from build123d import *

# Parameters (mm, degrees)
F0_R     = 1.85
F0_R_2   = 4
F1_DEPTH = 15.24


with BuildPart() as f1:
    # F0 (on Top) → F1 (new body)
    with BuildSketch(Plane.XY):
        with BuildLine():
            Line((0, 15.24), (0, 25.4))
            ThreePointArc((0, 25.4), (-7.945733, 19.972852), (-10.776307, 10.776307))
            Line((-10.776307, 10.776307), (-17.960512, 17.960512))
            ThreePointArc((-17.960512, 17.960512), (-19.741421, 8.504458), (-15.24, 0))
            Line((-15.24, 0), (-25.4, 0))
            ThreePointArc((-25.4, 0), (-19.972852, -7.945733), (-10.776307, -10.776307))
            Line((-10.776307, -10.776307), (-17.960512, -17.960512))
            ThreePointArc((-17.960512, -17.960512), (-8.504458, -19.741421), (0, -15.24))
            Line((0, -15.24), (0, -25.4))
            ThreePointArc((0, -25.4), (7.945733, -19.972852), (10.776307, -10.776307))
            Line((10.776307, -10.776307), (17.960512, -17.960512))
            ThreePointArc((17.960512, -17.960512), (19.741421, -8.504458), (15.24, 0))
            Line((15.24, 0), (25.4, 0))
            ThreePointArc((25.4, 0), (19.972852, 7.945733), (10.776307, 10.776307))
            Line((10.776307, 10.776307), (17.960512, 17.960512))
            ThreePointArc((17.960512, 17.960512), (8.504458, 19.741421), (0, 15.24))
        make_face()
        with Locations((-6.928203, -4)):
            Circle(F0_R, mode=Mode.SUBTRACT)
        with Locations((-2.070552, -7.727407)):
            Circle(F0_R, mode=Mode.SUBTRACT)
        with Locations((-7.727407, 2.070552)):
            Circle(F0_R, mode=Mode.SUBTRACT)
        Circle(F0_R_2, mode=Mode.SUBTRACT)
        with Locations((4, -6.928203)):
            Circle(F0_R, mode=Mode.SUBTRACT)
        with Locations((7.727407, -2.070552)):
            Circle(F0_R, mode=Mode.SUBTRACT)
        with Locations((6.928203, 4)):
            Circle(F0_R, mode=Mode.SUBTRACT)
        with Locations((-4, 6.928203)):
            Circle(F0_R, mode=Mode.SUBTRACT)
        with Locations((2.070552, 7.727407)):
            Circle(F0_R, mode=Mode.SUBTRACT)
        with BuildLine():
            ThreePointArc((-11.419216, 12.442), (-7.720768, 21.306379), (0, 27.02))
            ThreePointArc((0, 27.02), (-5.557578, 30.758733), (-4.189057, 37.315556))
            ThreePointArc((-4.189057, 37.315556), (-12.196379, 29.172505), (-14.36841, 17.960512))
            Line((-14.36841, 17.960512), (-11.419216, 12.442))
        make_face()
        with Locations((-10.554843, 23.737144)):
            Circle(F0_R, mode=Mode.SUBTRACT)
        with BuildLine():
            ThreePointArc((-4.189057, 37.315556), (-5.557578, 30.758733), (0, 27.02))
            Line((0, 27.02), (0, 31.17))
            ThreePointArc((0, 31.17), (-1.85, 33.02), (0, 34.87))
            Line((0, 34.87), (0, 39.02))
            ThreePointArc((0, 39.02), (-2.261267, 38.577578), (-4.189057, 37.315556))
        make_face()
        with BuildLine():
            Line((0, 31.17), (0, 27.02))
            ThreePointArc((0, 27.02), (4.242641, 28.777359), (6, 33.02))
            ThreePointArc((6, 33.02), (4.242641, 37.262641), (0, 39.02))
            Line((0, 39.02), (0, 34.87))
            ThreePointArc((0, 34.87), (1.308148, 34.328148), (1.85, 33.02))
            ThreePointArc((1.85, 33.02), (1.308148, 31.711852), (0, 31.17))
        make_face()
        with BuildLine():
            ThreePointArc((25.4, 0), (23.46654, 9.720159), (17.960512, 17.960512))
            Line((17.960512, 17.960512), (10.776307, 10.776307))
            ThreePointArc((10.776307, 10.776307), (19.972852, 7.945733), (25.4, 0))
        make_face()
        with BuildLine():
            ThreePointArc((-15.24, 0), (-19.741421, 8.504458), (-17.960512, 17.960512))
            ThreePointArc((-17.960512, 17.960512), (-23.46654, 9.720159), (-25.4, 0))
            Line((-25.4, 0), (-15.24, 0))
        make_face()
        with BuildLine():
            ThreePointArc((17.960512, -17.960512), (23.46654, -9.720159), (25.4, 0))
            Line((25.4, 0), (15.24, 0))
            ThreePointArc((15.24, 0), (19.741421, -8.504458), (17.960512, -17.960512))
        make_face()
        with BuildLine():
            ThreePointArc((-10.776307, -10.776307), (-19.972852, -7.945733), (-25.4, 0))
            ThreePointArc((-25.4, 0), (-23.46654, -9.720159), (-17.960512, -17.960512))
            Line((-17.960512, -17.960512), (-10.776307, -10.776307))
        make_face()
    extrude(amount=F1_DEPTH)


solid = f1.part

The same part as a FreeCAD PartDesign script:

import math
import FreeCAD as App
import Part
import Sketcher

V = App.Vector
Q = App.Units.Quantity

doc = App.newDocument("Part")
body = doc.addObject("PartDesign::Body", "Body")
body.AllowCompound = True

# Sketch on XY plane
sketch1 = body.newObject("Sketcher::SketchObject", "Sketch")
sketch1.AttachmentSupport = (doc.getObject("XY_Plane"), [""])
sketch1.MapMode = "FlatFace"
sketch1.addGeometry(Part.LineSegment(V(0, 15.2, 0), V(0, 25.4, 0)), False)
sketch1.addGeometry(Part.ArcOfCircle(Part.Circle(V(3.8, 11.3, 0), V(0, 0, 1), 14.6), math.radians(105), math.radians(182)), False)
sketch1.addGeometry(Part.LineSegment(V(-10.8, 10.8, 0), V(-18, 18, 0)), False)
sketch1.addGeometry(Part.ArcOfCircle(Part.Circle(V(0, 0, 0), V(0, 0, 1), 25.4), math.radians(135), math.radians(180)), False)
sketch1.addGeometry(Part.ArcOfCircle(Part.Circle(V(0, 0, 0), V(0, 0, 1), 25.4), math.radians(-180), math.radians(-135)), False)
sketch1.addGeometry(Part.ArcOfCircle(Part.Circle(V(-10.7, -5.3, 0), V(0, 0, 1), 14.6), math.radians(-120), math.radians(-43)), False)
sketch1.addGeometry(Part.LineSegment(V(0, -15.2, 0), V(0, -25.4, 0)), False)
sketch1.addGeometry(Part.ArcOfCircle(Part.Circle(V(-3.8, -11.3, 0), V(0, 0, 1), 14.6), math.radians(-75), math.radians(2)), False)
sketch1.addGeometry(Part.LineSegment(V(10.8, -10.8, 0), V(18, -18, 0)), False)
sketch1.addGeometry(Part.ArcOfCircle(Part.Circle(V(0, 0, 0), V(0, 0, 1), 25.4), math.radians(-45), math.radians(0)), False)
sketch1.addGeometry(Part.ArcOfCircle(Part.Circle(V(0, 0, 0), V(0, 0, 1), 25.4), math.radians(0), math.radians(45)), False)
sketch1.addGeometry(Part.ArcOfCircle(Part.Circle(V(10.7, 5.3, 0), V(0, 0, 1), 14.6), math.radians(60), math.radians(137)), False)
sketch1.addGeometry(Part.Circle(V(-2.1, -7.7, 0), V(0, 0, 1), 1.9), False)
sketch1.addGeometry(Part.Circle(V(-6.9, -4, 0), V(0, 0, 1), 1.9), False)
sketch1.addGeometry(Part.Circle(V(4, -6.9, 0), V(0, 0, 1), 1.9), False)
sketch1.addGeometry(Part.Circle(V(7.7, -2.1, 0), V(0, 0, 1), 1.9), False)
sketch1.addGeometry(Part.Circle(V(-7.7, 2.1, 0), V(0, 0, 1), 1.9), False)
sketch1.addGeometry(Part.Circle(V(-4, 6.9, 0), V(0, 0, 1), 1.9), False)
sketch1.addGeometry(Part.Circle(V(0, 0, 0), V(0, 0, 1), 4), False)
sketch1.addGeometry(Part.Circle(V(6.9, 4, 0), V(0, 0, 1), 1.9), False)
sketch1.addGeometry(Part.Circle(V(2.1, 7.7, 0), V(0, 0, 1), 1.9), False)
sketch1.addGeometry(Part.ArcOfCircle(Part.Circle(V(6.5, 10.2, 0), V(0, 0, 1), 18.1), math.radians(111), math.radians(173)), False)
sketch1.addGeometry(Part.ArcOfCircle(Part.Circle(V(0, 33, 0), V(0, 0, 1), 6), math.radians(-90), math.radians(0)), False)
sketch1.addGeometry(Part.ArcOfCircle(Part.Circle(V(0, 33, 0), V(0, 0, 1), 6), math.radians(0), math.radians(90)), False)
sketch1.addGeometry(Part.ArcOfCircle(Part.Circle(V(0, 33, 0), V(0, 0, 1), 6), math.radians(90), math.radians(134)), False)
sketch1.addGeometry(Part.ArcOfCircle(Part.Circle(V(5.3, 20, 0), V(0, 0, 1), 19.8), math.radians(119), math.radians(186)), False)
sketch1.addGeometry(Part.LineSegment(V(-14.4, 18, 0), V(-11.4, 12.4, 0)), False)
sketch1.addGeometry(Part.ArcOfCircle(Part.Circle(V(0, 33, 0), V(0, 0, 1), 1.9), math.radians(90), math.radians(270)), False)
sketch1.addGeometry(Part.ArcOfCircle(Part.Circle(V(0, 33, 0), V(0, 0, 1), 1.8), math.radians(0), math.radians(90)), False)
sketch1.addGeometry(Part.ArcOfCircle(Part.Circle(V(0, 33, 0), V(0, 0, 1), 1.8), math.radians(-90), math.radians(0)), False)
sketch1.addGeometry(Part.Circle(V(-10.6, 23.7, 0), V(0, 0, 1), 1.9), False)
sketch1.addConstraint(Sketcher.Constraint("Coincident", 0, 2, 1, 1))
sketch1.addConstraint(Sketcher.Constraint("Coincident", 1, 2, 2, 1))
sketch1.addConstraint(Sketcher.Constraint("Coincident", 2, 2, 3, 1))
sketch1.addConstraint(Sketcher.Constraint("Tangent", 3, 2, 4, 1))
sketch1.addConstraint(Sketcher.Constraint("Coincident", 4, 2, 5, 1))
sketch1.addConstraint(Sketcher.Constraint("Coincident", 5, 2, 6, 1))
sketch1.addConstraint(Sketcher.Constraint("Coincident", 6, 2, 7, 1))
sketch1.addConstraint(Sketcher.Constraint("Coincident", 7, 2, 8, 1))
sketch1.addConstraint(Sketcher.Constraint("Coincident", 8, 2, 9, 1))
sketch1.addConstraint(Sketcher.Constraint("Tangent", 9, 2, 10, 1))
sketch1.addConstraint(Sketcher.Constraint("Coincident", 10, 2, 11, 1))
sketch1.addConstraint(Sketcher.Constraint("Coincident", 11, 2, 0, 1))
sketch1.addConstraint(Sketcher.Constraint("Coincident", 21, 1, 22, 1))
sketch1.addConstraint(Sketcher.Constraint("Tangent", 22, 2, 23, 1))
sketch1.addConstraint(Sketcher.Constraint("Tangent", 23, 2, 24, 1))
sketch1.addConstraint(Sketcher.Constraint("Coincident", 24, 2, 25, 1))
sketch1.addConstraint(Sketcher.Constraint("Coincident", 25, 2, 26, 1))
sketch1.addConstraint(Sketcher.Constraint("Coincident", 26, 2, 21, 2))
sketch1.addConstraint(Sketcher.Constraint("Tangent", 27, 1, 28, 2))
sketch1.addConstraint(Sketcher.Constraint("Tangent", 28, 1, 29, 2))
sketch1.addConstraint(Sketcher.Constraint("Tangent", 29, 1, 27, 2))
sketch1.addConstraint(Sketcher.Constraint("Vertical", 0))
sketch1.addConstraint(Sketcher.Constraint("Vertical", 6))
sketch1.addConstraint(Sketcher.Constraint("Coincident", 3, 3, -1, 1))
sketch1.addConstraint(Sketcher.Constraint("Coincident", 9, 3, -1, 1))
sketch1.addConstraint(Sketcher.Constraint("Coincident", 18, 3, -1, 1))
sketch1.addConstraint(Sketcher.Constraint("Coincident", 24, 3, 22, 3))
sketch1.addConstraint(Sketcher.Constraint("Coincident", 27, 3, 22, 3))
sketch1.addConstraint(Sketcher.Constraint("Equal", 3, 4))
sketch1.addConstraint(Sketcher.Constraint("Equal", 1, 5))
sketch1.addConstraint(Sketcher.Constraint("Equal", 5, 7))
sketch1.addConstraint(Sketcher.Constraint("Equal", 4, 9))
sketch1.addConstraint(Sketcher.Constraint("Equal", 9, 10))
sketch1.addConstraint(Sketcher.Constraint("Equal", 7, 11))
sketch1.addConstraint(Sketcher.Constraint("Equal", 12, 13))
sketch1.addConstraint(Sketcher.Constraint("Equal", 13, 14))
sketch1.addConstraint(Sketcher.Constraint("Equal", 14, 15))
sketch1.addConstraint(Sketcher.Constraint("Equal", 15, 16))
sketch1.addConstraint(Sketcher.Constraint("Equal", 16, 17))
sketch1.addConstraint(Sketcher.Constraint("Equal", 17, 19))
sketch1.addConstraint(Sketcher.Constraint("Equal", 19, 20))
sketch1.addConstraint(Sketcher.Constraint("Equal", 20, 27))
sketch1.addConstraint(Sketcher.Constraint("Equal", 29, 30))
sketch1.addConstraint(Sketcher.Constraint("Symmetric", 1, 3, 7, 3, -1, 1))
sketch1.addConstraint(Sketcher.Constraint("Symmetric", 5, 3, 11, 3, -1, 1))
sketch1.addConstraint(Sketcher.Constraint("Symmetric", 15, 3, 16, 3, -1, 1))
sketch1.addConstraint(Sketcher.Constraint("Symmetric", 14, 3, 17, 3, -1, 1))
sketch1.addConstraint(Sketcher.Constraint("Symmetric", 13, 3, 19, 3, -1, 1))
sketch1.addConstraint(Sketcher.Constraint("Symmetric", 12, 3, 20, 3, -1, 1))
sketch1.addConstraint(Sketcher.Constraint("Symmetric", 0, 2, 6, 2, -1))
sketch1.addConstraint(Sketcher.Constraint("PointOnObject", 22, 3, -2))
sketch1.addConstraint(Sketcher.Constraint("PointOnObject", 3, 2, -1))
sketch1.addConstraint(Sketcher.Constraint("PointOnObject", 9, 2, -1))
sketch1.addConstraint(Sketcher.Constraint("PointOnObject", 21, 1, -2))
sketch1.addConstraint(Sketcher.Constraint("PointOnObject", 23, 2, -2))
sketch1.addConstraint(Sketcher.Constraint("PointOnObject", 27, 1, -2))
sketch1.addConstraint(Sketcher.Constraint("PointOnObject", 29, 1, -2))
sketch1.addConstraint(Sketcher.Constraint("Parallel", 2, 8))
sketch1.addConstraint(Sketcher.Constraint("Horizontal", 4, 2, 8, 2))
sketch1.addConstraint(Sketcher.Constraint("Horizontal", 2, 2, 10, 2))
sketch1.addConstraint(Sketcher.Constraint("Horizontal", 29, 3, 22, 2))
sketch1.addConstraint(Sketcher.Constraint("Horizontal", 10, 2, 25, 2))
sketch1.addConstraint(Sketcher.Constraint("Horizontal", 22, 2, 28, 1))
sketch1.addConstraint(Sketcher.Constraint("Radius", 3, Q("1 in")))
sketch1.addConstraint(Sketcher.Constraint("DistanceY", 0, 1, 0, 2, Q("0.4 in")))
sketch1.addConstraint(Sketcher.Constraint("DistanceY", -1, 1, 0, 2, Q("1 in")))
sketch1.addConstraint(Sketcher.Constraint("Angle", 2, Q("135 deg")))
sketch1.addConstraint(Sketcher.Constraint("Distance", 2, Q("0.4 in")))
sketch1.addConstraint(Sketcher.Constraint("DistanceY", -1, 1, 22, 3, Q("1.3 in")))
sketch1.addConstraint(Sketcher.Constraint("Diameter", 12, Q("3.7 mm")))
sketch1.addConstraint(Sketcher.Constraint("Diameter", 18, Q("8 mm")))
sketch1.addConstraint(Sketcher.Constraint("Radius", 22, Q("5.999999 mm")))
sketch1.addConstraint(Sketcher.Constraint("Radius", 25, Q("19.782258 mm")))
sketch1.addConstraint(Sketcher.Constraint("Radius", 1, Q("14.571723 mm")))
sketch1.addConstraint(Sketcher.Constraint("Radius", 21, Q("18.055952 mm")))
sketch1.addConstraint(Sketcher.Constraint("DistanceY", 17, 3, 1, 2, Q("0.1515002 in")))
sketch1.addConstraint(Sketcher.Constraint("DistanceY", 13, 3, -1, 1, Q("4 mm")))
sketch1.addConstraint(Sketcher.Constraint("DistanceX", -1, 1, 14, 3, Q("4 mm")))
sketch1.addConstraint(Sketcher.Constraint("DistanceX", -1, 1, 25, 3, Q("5.312102 mm")))
sketch1.addConstraint(Sketcher.Constraint("DistanceY", -1, 1, 26, 2, Q("12.442 mm")))
sketch1.addConstraint(Sketcher.Constraint("DistanceX", 7, 3, 12, 3, Q("1.7144 mm")))
sketch1.addConstraint(Sketcher.Constraint("DistanceY", 17, 3, 23, 3, Q("26.091798 mm")))
sketch1.addConstraint(Sketcher.Constraint("DistanceX", 1, 2, 16, 3, Q("3.0489 mm")))
sketch1.addConstraint(Sketcher.Constraint("DistanceY", 20, 3, 1, 2, Q("3.0489 mm")))
sketch1.addConstraint(Sketcher.Constraint("DistanceY", 10, 2, 25, 3, Q("2.003798 mm")))
sketch1.addConstraint(Sketcher.Constraint("DistanceY", -1, 1, 21, 3, Q("10.172091 mm")))
sketch1.addConstraint(Sketcher.Constraint("DistanceX", 13, 3, 12, 3, Q("4.857651 mm")))
sketch1.addConstraint(Sketcher.Constraint("DistanceY", 14, 3, 15, 3, Q("4.857651 mm")))
sketch1.addConstraint(Sketcher.Constraint("DistanceX", 2, 2, 30, 3, Q("7.405669 mm")))
sketch1.addConstraint(Sketcher.Constraint("DistanceY", 2, 2, 30, 3, Q("5.776632 mm")))
pad1 = body.newObject("PartDesign::Pad", "Pad")
pad1.Profile = sketch1
pad1.Length = Q("0.6 in")

doc.recompute()
